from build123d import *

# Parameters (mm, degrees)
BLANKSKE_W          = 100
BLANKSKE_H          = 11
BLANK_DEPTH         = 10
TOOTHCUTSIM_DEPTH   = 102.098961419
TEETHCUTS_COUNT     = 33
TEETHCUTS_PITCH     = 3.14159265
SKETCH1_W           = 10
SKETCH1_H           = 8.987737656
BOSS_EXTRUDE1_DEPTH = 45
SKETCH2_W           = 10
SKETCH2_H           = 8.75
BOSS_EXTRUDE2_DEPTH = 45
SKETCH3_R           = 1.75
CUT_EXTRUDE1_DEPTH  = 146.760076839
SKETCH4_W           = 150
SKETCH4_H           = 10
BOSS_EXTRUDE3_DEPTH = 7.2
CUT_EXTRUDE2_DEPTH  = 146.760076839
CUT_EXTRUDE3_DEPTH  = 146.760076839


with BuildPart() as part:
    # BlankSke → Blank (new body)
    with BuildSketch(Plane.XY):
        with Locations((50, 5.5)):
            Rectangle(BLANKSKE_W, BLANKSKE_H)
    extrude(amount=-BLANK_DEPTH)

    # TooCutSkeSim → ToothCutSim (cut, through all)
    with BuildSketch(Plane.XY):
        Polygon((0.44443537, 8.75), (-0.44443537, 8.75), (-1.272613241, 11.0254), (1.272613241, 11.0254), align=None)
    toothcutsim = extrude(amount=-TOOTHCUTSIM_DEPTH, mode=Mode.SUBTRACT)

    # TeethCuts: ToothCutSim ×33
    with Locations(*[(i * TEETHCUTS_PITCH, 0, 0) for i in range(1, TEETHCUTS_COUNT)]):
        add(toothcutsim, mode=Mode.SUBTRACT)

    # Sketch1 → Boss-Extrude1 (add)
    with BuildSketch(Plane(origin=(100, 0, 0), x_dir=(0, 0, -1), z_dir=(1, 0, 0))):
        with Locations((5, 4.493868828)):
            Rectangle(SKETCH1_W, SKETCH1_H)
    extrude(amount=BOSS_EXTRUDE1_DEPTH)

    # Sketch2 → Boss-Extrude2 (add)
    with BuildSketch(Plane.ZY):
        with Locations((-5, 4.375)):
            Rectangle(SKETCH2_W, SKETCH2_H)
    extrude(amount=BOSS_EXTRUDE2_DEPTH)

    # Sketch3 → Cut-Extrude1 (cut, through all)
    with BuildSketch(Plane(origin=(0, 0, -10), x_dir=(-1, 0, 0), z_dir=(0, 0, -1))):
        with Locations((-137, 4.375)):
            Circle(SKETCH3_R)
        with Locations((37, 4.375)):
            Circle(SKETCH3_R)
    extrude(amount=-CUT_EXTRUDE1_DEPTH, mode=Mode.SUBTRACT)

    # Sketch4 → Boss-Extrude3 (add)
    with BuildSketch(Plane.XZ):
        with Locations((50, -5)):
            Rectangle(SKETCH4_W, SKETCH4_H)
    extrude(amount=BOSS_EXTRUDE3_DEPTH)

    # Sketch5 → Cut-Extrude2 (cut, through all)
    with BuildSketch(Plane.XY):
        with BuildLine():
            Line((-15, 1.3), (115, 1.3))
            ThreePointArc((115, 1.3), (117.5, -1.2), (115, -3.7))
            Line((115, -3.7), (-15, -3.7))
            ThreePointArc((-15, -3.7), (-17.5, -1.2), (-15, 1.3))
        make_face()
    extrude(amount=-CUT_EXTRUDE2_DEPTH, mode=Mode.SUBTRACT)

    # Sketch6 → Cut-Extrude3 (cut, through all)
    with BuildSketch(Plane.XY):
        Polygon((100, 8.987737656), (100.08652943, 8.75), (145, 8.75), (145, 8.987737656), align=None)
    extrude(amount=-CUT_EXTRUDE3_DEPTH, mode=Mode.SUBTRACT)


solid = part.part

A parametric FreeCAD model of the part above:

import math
import FreeCAD as App
import Part
import Sketcher

V = App.Vector
Q = App.Units.Quantity

doc = App.newDocument("Part")
params = doc.addObject("Spreadsheet::Sheet", "Params")
for row, (alias, value) in enumerate([
    ("sketch1_width", "100 mm"),
    ("sketch1_height", "11 mm"),
    ("pad1_length", "10 mm"),
    ("linearpattern_pitch", "3.141593 mm"),
    ("sketch3_height", "10 mm"),
    ("pad2_length", "45 mm"),
    ("sketch4_height", "10 mm"),
    ("sketch4_width", "8.75 mm"),
    ("pad3_length", "45 mm"),
    ("sketch5_diameter", "3.5 mm"),
    ("sketch6_width", "150 mm"),
    ("sketch6_height", "10 mm"),
    ("pad4_length", "7.2 mm"),
    ("sketch7_radius", "2.5 mm"),
    ("sketch7_width", "130 mm"),
    ("sketch8_width", "45 mm"),
], start=1):
    params.set(f"A{row}", alias)
    params.set(f"B{row}", "=" + value)
    params.setAlias(f"B{row}", alias)

body = doc.addObject("PartDesign::Body", "Body")

# Sketch on XY plane
sketch1 = body.newObject("Sketcher::SketchObject", "Sketch")
sketch1.AttachmentSupport = (doc.getObject("XY_Plane"), [""])
sketch1.MapMode = "FlatFace"
sketch1.addGeometry([
    Part.LineSegment(V(0, 11, 0), V(0, 0, 0)),
    Part.LineSegment(V(0, 0, 0), V(100, 0, 0)),
    Part.LineSegment(V(100, 0, 0), V(100, 11, 0)),
    Part.LineSegment(V(100, 11, 0), V(0, 11, 0)),
], False)
sketch1.addConstraint([
    Sketcher.Constraint("Coincident", 0, 2, 1, 1),
    Sketcher.Constraint("Coincident", 1, 2, 2, 1),
    Sketcher.Constraint("Coincident", 2, 2, 3, 1),
    Sketcher.Constraint("Coincident", 3, 2, 0, 1),
    Sketcher.Constraint("Vertical", 0),
    Sketcher.Constraint("Horizontal", 1),
    Sketcher.Constraint("Vertical", 2),
    Sketcher.Constraint("Horizontal", 3),
    Sketcher.Constraint("Coincident", 0, 2, -1, 1),
    Sketcher.Constraint("DistanceX", 1, 1, 1, 2, Q("100 mm")),
    Sketcher.Constraint("DistanceY", 0, 2, 0, 1, Q("11 mm")),
])
sketch1.setExpression("Constraints[9]", "Params.sketch1_width")
sketch1.setExpression("Constraints[10]", "Params.sketch1_height")
pad1 = body.newObject("PartDesign::Pad", "Pad")
pad1.Profile = sketch1
pad1.setExpression("Length", "Params.pad1_length")
pad1.Reversed = True

# Sketch on XY plane
sketch2 = body.newObject("Sketcher::SketchObject", "Sketch001")
sketch2.AttachmentSupport = (doc.getObject("XY_Plane"), [""])
sketch2.MapMode = "FlatFace"
sketch2.addGeometry([
    Part.LineSegment(V(-0.4, 8.8, 0), V(0.4, 8.8, 0)),
    Part.LineSegment(V(0.4, 8.8, 0), V(1.3, 11, 0)),
    Part.LineSegment(V(1.3, 11, 0), V(-1.3, 11, 0)),
    Part.LineSegment(V(-1.3, 11, 0), V(-0.4, 8.8, 0)),
], False)
sketch2.addConstraint([
    Sketcher.Constraint("Coincident", 0, 2, 1, 1),
    Sketcher.Constraint("Coincident", 1, 2, 2, 1),
    Sketcher.Constraint("Coincident", 2, 2, 3, 1),
    Sketcher.Constraint("Coincident", 3, 2, 0, 1),
    Sketcher.Constraint("Horizontal", 0),
    Sketcher.Constraint("Horizontal", 2),
    Sketcher.Constraint("Equal", 1, 3),
    Sketcher.Constraint("Angle", 1, Q("70 deg")),
    Sketcher.Constraint("DistanceY", -1, 1, 0, 2, Q("8.75 mm")),
    Sketcher.Constraint("DistanceX", 0, 1, 0, 2, Q("0.888871 mm")),
    Sketcher.Constraint("DistanceY", -1, 1, 1, 2, Q("11.0254 mm")),
    Sketcher.Constraint("DistanceX", -1, 1, 0, 2, Q("0.444435 mm")),
])
pocket1 = body.newObject("PartDesign::Pocket", "Pocket")
pocket1.Profile = sketch2
pocket1.Type = "ThroughAll"
doc.recompute()

linearpattern = body.newObject("PartDesign::LinearPattern", "LinearPattern")
linearpattern.Originals = [pocket1]
linearpattern.Direction = (doc.getObject("X_Axis"), [""])
linearpattern.Mode = "offset"
linearpattern.setExpression("Offset", "Params.linearpattern_pitch")
linearpattern.Occurrences = 33
body.Tip = linearpattern

# Sketch on YZ plane
sketch3 = body.newObject("Sketcher::SketchObject", "Sketch002")
sketch3.AttachmentSupport = (doc.getObject("YZ_Plane"), [""])
sketch3.MapMode = "FlatFace"
sketch3.AttachmentOffset = App.Placement(V(0, 0, 100), App.Rotation())
sketch3.addGeometry([
    Part.LineSegment(V(9, 0, 0), V(0, 0, 0)),
    Part.LineSegment(V(0, 0, 0), V(0, -10, 0)),
    Part.LineSegment(V(0, -10, 0), V(9, -10, 0)),
    Part.LineSegment(V(9, -10, 0), V(9, 0, 0)),
], False)
sketch3.addConstraint([
    Sketcher.Constraint("Coincident", 0, 2, 1, 1),
    Sketcher.Constraint("Coincident", 1, 2, 2, 1),
    Sketcher.Constraint("Coincident", 2, 2, 3, 1),
    Sketcher.Constraint("Coincident", 3, 2, 0, 1),
    Sketcher.Constraint("Horizontal", 0),
    Sketcher.Constraint("Vertical", 1),
    Sketcher.Constraint("Horizontal", 2),
    Sketcher.Constraint("Vertical", 3),
    Sketcher.Constraint("Coincident", 0, 2, -1, 1),
    Sketcher.Constraint("DistanceY", 1, 2, 1, 1, Q("10 mm")),
    Sketcher.Constraint("DistanceX", 0, 2, 0, 1, Q("8.987738 mm")),
])
sketch3.setExpression("Constraints[9]", "Params.sketch3_height")
pad2 = body.newObject("PartDesign::Pad", "Pad001")
pad2.Profile = sketch3
pad2.setExpression("Length", "Params.pad2_length")

# Sketch on YZ plane
sketch4 = body.newObject("Sketcher::SketchObject", "Sketch003")
sketch4.AttachmentSupport = (doc.getObject("YZ_Plane"), [""])
sketch4.MapMode = "FlatFace"
sketch4.addGeometry([
    Part.LineSegment(V(9, -10, 0), V(0, -10, 0)),
    Part.LineSegment(V(0, -10, 0), V(0, 0, 0)),
    Part.LineSegment(V(0, 0, 0), V(9, 0, 0)),
    Part.LineSegment(V(9, 0, 0), V(9, -10, 0)),
], False)
sketch4.addConstraint([
    Sketcher.Constraint("Coincident", 0, 2, 1, 1),
    Sketcher.Constraint("Coincident", 1, 2, 2, 1),
    Sketcher.Constraint("Coincident", 2, 2, 3, 1),
    Sketcher.Constraint("Coincident", 3, 2, 0, 1),
    Sketcher.Constraint("Horizontal", 0),
    Sketcher.Constraint("Vertical", 1),
    Sketcher.Constraint("Horizontal", 2),
    Sketcher.Constraint("Vertical", 3),
    Sketcher.Constraint("Coincident", 1, 2, -1, 1),
    Sketcher.Constraint("DistanceY", 1, 1, 1, 2, Q("10 mm")),
    Sketcher.Constraint("DistanceX", 0, 2, 0, 1, Q("8.75 mm")),
])
sketch4.setExpression("Constraints[9]", "Params.sketch4_height")
sketch4.setExpression("Constraints[10]", "Params.sketch4_width")
pad3 = body.newObject("PartDesign::Pad", "Pad002")
pad3.Profile = sketch4
pad3.setExpression("Length", "Params.pad3_length")
pad3.Reversed = True

# Sketch on XY plane
sketch5 = body.newObject("Sketcher::SketchObject", "Sketch004")
sketch5.AttachmentSupport = (doc.getObject("XY_Plane"), [""])
sketch5.MapMode = "FlatFace"
sketch5.AttachmentOffset = App.Placement(V(0, 0, -10), App.Rotation())
sketch5.addGeometry([
    Part.Circle(V(137, 4.4, 0), V(0, 0, 1), 1.8),
    Part.Circle(V(-37, 4.4, 0), V(0, 0, 1), 1.8),
], False)
sketch5.addConstraint([
    Sketcher.Constraint("Equal", 0, 1),
    Sketcher.Constraint("Horizontal", 0, 3, 1, 3),
    Sketcher.Constraint("Diameter", 0, Q("3.5 mm")),
    Sketcher.Constraint("DistanceX", -1, 1, 0, 3, Q("137 mm")),
    Sketcher.Constraint("DistanceX", 1, 3, -1, 1, Q("37 mm")),
    Sketcher.Constraint("DistanceY", -1, 1, 0, 3, Q("4.375 mm")),
])
sketch5.setExpression("Constraints[2]", "Params.sketch5_diameter")
pocket2 = body.newObject("PartDesign::Pocket", "Pocket001")
pocket2.Profile = sketch5
pocket2.Type = "ThroughAll"
pocket2.Reversed = True

# Sketch on XZ plane
sketch6 = body.newObject("Sketcher::SketchObject", "Sketch005")
sketch6.AttachmentSupport = (doc.getObject("XZ_Plane"), [""])
sketch6.MapMode = "FlatFace"
sketch6.addGeometry([
    Part.LineSegment(V(-25, 0, 0), V(-25, -10, 0)),
    Part.LineSegment(V(-25, -10, 0), V(125, -10, 0)),
    Part.LineSegment(V(125, -10, 0), V(125, 0, 0)),
    Part.LineSegment(V(125, 0, 0), V(-25, 0, 0)),
], False)
sketch6.addConstraint([
    Sketcher.Constraint("Coincident", 0, 2, 1, 1),
    Sketcher.Constraint("Coincident", 1, 2, 2, 1),
    Sketcher.Constraint("Coincident", 2, 2, 3, 1),
    Sketcher.Constraint("Coincident", 3, 2, 0, 1),
    Sketcher.Constraint("Vertical", 0),
    Sketcher.Constraint("Horizontal", 1),
    Sketcher.Constraint("Vertical", 2),
    Sketcher.Constraint("Horizontal", 3),
    Sketcher.Constraint("PointOnObject", 2, 2, -1),
    Sketcher.Constraint("DistanceX", 1, 1, 1, 2, Q("150 mm")),
    Sketcher.Constraint("DistanceY", 0, 2, 0, 1, Q("10 mm")),
    Sketcher.Constraint("DistanceX", 0, 2, -1, 1, Q("25 mm")),
])
sketch6.setExpression("Constraints[9]", "Params.sketch6_width")
sketch6.setExpression("Constraints[10]", "Params.sketch6_height")
pad4 = body.newObject("PartDesign::Pad", "Pad003")
pad4.Profile = sketch6
pad4.setExpression("Length", "Params.pad4_length")

# Sketch on XY plane
sketch7 = body.newObject("Sketcher::SketchObject", "Sketch006")
sketch7.AttachmentSupport = (doc.getObject("XY_Plane"), [""])
sketch7.MapMode = "FlatFace"
sketch7.addGeometry([
    Part.LineSegment(V(115, 1.3, 0), V(-15, 1.3, 0)),
    Part.ArcOfCircle(Part.Circle(V(-15, -1.2, 0), V(0, 0, 1), 2.5), math.radians(90), math.radians(270)),
    Part.LineSegment(V(-15, -3.7, 0), V(115, -3.7, 0)),
    Part.ArcOfCircle(Part.Circle(V(115, -1.2, 0), V(0, 0, 1), 2.5), math.radians(-90), math.radians(90)),
], False)
sketch7.addConstraint([
    Sketcher.Constraint("Tangent", 0, 2, 1, 1),
    Sketcher.Constraint("Tangent", 1, 2, 2, 1),
    Sketcher.Constraint("Tangent", 2, 2, 3, 1),
    Sketcher.Constraint("Tangent", 3, 2, 0, 1),
    Sketcher.Constraint("Horizontal", 0),
    Sketcher.Constraint("Horizontal", 2),
    Sketcher.Constraint("Radius", 1, Q("2.5 mm")),
    Sketcher.Constraint("DistanceX", 0, 2, 0, 1, Q("130 mm")),
    Sketcher.Constraint("DistanceX", 1, 3, -1, 1, Q("15 mm")),
    Sketcher.Constraint("DistanceY", 1, 3, -1, 1, Q("1.2 mm")),
])
sketch7.setExpression("Constraints[6]", "Params.sketch7_radius")
sketch7.setExpression("Constraints[7]", "Params.sketch7_width")
pocket3 = body.newObject("PartDesign::Pocket", "Pocket002")
pocket3.Profile = sketch7
pocket3.Type = "ThroughAll"

# Sketch on XY plane
sketch8 = body.newObject("Sketcher::SketchObject", "Sketch007")
sketch8.AttachmentSupport = (doc.getObject("XY_Plane"), [""])
sketch8.MapMode = "FlatFace"
sketch8.addGeometry([
    Part.LineSegment(V(100, 8.99, 0), V(100.09, 8.75, 0)),
    Part.LineSegment(V(100.09, 8.75, 0), V(145, 8.75, 0)),
    Part.LineSegment(V(145, 8.75, 0), V(145, 8.99, 0)),
    Part.LineSegment(V(145, 8.99, 0), V(100, 8.99, 0)),
], False)
sketch8.addConstraint([
    Sketcher.Constraint("Coincident", 0, 2, 1, 1),
    Sketcher.Constraint("Coincident", 1, 2, 2, 1),
    Sketcher.Constraint("Coincident", 2, 2, 3, 1),
    Sketcher.Constraint("Coincident", 3, 2, 0, 1),
    Sketcher.Constraint("Horizontal", 1),
    Sketcher.Constraint("Vertical", 2),
    Sketcher.Constraint("Horizontal", 3),
    Sketcher.Constraint("DistanceX", 3, 2, 3, 1, Q("45 mm")),
    Sketcher.Constraint("Angle", 0, Q("-70 deg")),
    Sketcher.Constraint("DistanceX", -1, 1, 1, 2, Q("145 mm")),
    Sketcher.Constraint("DistanceY", -1, 1, 0, 2, Q("8.75 mm")),
    Sketcher.Constraint("DistanceX", 1, 1, 1, 2, Q("44.913471 mm")),
])
sketch8.setExpression("Constraints[7]", "Params.sketch8_width")
pocket4 = body.newObject("PartDesign::Pocket", "Pocket003")
pocket4.Profile = sketch8
pocket4.Type = "ThroughAll"

doc.recompute()
